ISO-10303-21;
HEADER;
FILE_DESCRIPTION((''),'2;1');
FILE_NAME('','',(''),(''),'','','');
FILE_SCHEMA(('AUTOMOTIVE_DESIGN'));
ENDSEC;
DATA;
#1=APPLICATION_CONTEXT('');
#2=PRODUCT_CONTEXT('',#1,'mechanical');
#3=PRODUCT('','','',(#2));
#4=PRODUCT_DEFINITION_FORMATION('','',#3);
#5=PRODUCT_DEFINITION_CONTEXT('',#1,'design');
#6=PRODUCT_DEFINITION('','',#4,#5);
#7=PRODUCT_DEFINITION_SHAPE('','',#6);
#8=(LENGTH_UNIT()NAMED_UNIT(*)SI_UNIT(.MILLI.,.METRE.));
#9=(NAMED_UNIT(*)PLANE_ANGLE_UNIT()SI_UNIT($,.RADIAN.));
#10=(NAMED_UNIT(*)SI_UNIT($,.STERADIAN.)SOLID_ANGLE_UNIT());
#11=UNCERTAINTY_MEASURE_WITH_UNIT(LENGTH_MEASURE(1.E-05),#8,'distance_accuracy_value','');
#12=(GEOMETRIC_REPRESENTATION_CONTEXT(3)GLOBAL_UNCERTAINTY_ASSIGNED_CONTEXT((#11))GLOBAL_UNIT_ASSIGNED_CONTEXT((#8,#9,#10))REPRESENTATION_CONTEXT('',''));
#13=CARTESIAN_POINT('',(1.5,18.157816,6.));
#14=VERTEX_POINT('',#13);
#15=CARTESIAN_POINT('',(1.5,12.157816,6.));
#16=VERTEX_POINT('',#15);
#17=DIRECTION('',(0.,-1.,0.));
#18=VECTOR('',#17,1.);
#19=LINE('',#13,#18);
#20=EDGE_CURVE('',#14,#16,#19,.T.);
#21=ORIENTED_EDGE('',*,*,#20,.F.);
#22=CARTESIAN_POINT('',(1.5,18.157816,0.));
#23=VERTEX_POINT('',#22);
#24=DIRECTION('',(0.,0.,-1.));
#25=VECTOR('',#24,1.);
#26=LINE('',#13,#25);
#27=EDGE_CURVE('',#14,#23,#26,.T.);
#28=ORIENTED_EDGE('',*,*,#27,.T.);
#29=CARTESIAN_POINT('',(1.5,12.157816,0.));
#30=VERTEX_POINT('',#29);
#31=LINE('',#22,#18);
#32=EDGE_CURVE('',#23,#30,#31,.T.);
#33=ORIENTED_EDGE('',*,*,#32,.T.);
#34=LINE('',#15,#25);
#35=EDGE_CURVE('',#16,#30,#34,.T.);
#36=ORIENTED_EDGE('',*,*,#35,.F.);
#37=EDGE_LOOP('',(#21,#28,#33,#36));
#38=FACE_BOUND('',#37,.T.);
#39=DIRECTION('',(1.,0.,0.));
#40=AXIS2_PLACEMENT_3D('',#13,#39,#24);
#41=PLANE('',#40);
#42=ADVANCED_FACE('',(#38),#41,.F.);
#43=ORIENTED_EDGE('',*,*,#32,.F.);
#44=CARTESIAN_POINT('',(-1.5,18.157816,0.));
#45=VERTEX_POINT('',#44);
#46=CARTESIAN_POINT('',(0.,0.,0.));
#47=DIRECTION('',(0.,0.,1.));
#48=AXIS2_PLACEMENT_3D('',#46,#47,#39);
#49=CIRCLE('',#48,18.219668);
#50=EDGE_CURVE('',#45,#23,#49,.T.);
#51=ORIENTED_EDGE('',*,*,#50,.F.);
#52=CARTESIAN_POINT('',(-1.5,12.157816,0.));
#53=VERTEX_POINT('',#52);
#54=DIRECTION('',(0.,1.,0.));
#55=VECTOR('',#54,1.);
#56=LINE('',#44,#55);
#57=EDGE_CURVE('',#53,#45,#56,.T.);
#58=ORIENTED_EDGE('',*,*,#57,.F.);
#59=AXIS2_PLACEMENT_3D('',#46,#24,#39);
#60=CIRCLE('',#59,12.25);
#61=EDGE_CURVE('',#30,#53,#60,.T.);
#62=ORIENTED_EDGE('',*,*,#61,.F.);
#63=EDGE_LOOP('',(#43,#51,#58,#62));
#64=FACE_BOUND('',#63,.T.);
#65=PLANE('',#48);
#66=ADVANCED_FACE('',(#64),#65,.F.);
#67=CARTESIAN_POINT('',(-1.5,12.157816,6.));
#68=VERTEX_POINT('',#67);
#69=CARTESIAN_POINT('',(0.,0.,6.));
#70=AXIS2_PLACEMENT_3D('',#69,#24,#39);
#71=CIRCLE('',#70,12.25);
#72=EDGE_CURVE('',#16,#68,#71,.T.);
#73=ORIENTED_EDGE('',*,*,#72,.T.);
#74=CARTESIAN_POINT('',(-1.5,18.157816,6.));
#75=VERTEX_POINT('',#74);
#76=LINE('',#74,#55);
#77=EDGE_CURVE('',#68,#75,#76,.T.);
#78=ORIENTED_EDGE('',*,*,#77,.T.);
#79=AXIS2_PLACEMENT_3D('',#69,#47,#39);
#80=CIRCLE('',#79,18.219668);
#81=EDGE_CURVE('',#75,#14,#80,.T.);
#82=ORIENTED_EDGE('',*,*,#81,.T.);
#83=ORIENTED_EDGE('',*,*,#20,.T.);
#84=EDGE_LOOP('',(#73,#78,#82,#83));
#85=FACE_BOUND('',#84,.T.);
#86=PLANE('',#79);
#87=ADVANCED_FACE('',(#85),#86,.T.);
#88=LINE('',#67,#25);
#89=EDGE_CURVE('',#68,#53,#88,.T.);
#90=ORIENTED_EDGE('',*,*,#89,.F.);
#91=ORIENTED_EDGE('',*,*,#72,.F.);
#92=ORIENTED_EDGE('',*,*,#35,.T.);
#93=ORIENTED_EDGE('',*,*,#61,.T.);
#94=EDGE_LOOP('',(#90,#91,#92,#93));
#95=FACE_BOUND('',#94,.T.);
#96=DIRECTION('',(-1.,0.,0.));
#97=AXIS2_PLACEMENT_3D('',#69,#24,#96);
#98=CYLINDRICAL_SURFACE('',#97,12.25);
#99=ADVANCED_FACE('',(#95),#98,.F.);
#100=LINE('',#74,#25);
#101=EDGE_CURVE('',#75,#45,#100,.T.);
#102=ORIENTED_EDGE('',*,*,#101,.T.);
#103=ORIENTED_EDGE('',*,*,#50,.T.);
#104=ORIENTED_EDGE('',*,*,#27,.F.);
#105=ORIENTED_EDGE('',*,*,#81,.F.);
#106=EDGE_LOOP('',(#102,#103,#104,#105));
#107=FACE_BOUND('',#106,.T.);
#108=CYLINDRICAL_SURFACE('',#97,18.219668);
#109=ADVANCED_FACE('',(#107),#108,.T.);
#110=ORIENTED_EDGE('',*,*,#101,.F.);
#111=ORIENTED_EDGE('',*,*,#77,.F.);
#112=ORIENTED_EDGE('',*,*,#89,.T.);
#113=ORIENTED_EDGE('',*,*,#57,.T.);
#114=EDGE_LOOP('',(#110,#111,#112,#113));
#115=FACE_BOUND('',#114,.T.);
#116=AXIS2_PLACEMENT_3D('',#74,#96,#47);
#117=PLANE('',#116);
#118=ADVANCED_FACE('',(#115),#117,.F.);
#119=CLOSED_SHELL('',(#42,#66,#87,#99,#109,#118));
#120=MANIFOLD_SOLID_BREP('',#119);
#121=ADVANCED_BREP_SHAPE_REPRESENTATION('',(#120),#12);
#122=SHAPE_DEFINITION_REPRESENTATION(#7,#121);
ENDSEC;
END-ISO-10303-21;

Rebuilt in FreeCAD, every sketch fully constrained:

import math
import FreeCAD as App
import Part
import Sketcher

V = App.Vector

doc = App.newDocument("Part")
body = doc.addObject("PartDesign::Body", "Body")

# Sketch on XY plane
sketch1 = doc.addObject("Sketcher::SketchObject", "Sketch")
body.addObject(sketch1)
sketch1.AttachmentSupport = (doc.XY_Plane, [""])
sketch1.MapMode = "FlatFace"
sketch1.addGeometry(Part.LineSegment(V(-1.5, 12.2, 0), V(-1.5, 18.2, 0)), False)
sketch1.addGeometry(Part.ArcOfCircle(Part.Circle(V(0, 0, 0), V(0, 0, 1), 18.2), math.radians(95), math.radians(445)), False)
sketch1.addGeometry(Part.LineSegment(V(1.5, 18.2, 0), V(1.5, 12.2, 0)), False)
sketch1.addGeometry(Part.ArcOfCircle(Part.Circle(V(0, 0, 0), V(0, 0, 1), 12.2), math.radians(97), math.radians(443)), False)
sketch1.addConstraint(Sketcher.Constraint("Coincident", 0, 2, 1, 1))
sketch1.addConstraint(Sketcher.Constraint("Coincident", 1, 2, 2, 1))
sketch1.addConstraint(Sketcher.Constraint("Coincident", 2, 2, 3, 2))
sketch1.addConstraint(Sketcher.Constraint("Coincident", 3, 1, 0, 1))
sketch1.addConstraint(Sketcher.Constraint("Vertical", 0))
sketch1.addConstraint(Sketcher.Constraint("Vertical", 2))
sketch1.addConstraint(Sketcher.Constraint("Coincident", 1, 3, -1, 1))
sketch1.addConstraint(Sketcher.Constraint("Coincident", 3, 3, -1, 1))
sketch1.addConstraint(Sketcher.Constraint("Horizontal", 0, 2, 1, 2))
sketch1.addConstraint(Sketcher.Constraint("DistanceY", 0, 1, 0, 2, 6.0))
sketch1.addConstraint(Sketcher.Constraint("Radius", 3, 12.25))
sketch1.addConstraint(Sketcher.Constraint("DistanceX", 0, 2, 1, 2, 3.0))
pad1 = doc.addObject("PartDesign::Pad", "Pad")
body.addObject(pad1)
pad1.Profile = sketch1
pad1.Length = 6

doc.recompute()
